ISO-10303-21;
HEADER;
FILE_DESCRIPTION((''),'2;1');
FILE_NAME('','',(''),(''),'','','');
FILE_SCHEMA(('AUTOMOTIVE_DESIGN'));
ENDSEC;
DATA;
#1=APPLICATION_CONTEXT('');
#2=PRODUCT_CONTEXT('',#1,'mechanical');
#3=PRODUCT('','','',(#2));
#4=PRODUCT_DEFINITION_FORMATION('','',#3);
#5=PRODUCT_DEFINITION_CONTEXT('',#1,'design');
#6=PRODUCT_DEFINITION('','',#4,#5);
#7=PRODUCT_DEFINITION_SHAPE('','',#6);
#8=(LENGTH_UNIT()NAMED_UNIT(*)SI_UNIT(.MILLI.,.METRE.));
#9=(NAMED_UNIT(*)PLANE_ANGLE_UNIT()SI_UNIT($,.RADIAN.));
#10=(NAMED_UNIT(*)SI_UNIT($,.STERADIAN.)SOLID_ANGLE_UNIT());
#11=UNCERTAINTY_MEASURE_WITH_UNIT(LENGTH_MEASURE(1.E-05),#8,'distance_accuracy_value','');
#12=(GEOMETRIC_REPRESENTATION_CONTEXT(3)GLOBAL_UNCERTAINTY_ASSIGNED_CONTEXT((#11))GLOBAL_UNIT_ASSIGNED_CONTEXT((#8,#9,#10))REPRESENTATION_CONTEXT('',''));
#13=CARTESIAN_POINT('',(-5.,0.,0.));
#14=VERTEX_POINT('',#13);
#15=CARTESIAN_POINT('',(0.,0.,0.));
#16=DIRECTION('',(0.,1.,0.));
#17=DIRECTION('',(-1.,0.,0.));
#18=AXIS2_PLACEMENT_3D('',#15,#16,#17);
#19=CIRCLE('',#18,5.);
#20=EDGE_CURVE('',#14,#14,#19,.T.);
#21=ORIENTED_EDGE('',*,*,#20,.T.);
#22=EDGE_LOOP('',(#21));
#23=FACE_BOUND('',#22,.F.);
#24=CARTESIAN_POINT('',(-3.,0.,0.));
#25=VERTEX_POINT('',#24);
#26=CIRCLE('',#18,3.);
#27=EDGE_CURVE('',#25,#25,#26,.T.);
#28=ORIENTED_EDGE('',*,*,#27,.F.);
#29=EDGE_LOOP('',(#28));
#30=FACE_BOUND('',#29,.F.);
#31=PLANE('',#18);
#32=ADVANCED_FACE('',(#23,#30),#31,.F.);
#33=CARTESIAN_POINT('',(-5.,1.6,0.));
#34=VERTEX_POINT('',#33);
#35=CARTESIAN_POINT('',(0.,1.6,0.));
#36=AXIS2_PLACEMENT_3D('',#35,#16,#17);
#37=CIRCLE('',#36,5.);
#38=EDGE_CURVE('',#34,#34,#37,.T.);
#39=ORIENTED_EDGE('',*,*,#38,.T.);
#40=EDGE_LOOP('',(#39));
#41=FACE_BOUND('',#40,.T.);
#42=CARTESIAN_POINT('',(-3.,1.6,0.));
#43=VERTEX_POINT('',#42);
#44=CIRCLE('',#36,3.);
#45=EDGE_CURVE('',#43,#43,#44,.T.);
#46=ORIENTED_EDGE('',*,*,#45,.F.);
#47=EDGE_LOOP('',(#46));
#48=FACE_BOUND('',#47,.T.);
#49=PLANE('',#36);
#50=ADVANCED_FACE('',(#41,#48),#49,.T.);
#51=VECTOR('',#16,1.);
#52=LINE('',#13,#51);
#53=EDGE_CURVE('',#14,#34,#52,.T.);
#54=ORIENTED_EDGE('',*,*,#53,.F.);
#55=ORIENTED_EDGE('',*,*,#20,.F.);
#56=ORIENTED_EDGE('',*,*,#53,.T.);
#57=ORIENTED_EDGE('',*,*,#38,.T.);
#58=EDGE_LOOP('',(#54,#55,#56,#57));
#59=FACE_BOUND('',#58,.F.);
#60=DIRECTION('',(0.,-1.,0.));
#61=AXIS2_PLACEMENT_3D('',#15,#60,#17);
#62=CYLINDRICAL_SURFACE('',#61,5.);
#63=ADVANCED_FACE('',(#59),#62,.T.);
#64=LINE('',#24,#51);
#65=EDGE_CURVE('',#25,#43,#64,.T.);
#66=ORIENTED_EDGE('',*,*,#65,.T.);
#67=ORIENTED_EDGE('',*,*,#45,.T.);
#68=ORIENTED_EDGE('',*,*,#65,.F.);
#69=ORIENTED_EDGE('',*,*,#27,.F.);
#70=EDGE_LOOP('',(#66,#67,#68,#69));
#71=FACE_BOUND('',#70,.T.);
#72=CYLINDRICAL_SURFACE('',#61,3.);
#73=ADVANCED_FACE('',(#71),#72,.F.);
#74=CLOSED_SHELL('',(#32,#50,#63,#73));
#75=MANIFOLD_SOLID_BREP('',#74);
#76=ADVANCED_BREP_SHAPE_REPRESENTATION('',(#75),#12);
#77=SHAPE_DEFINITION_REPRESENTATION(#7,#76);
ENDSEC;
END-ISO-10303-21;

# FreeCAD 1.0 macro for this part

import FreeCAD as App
import Part
import Sketcher
from FreeCAD import Vector
Q = App.Units.Quantity

doc = App.newDocument("Part")
body = doc.addObject("PartDesign::Body", "Body")

sketch1 = body.newObject("Sketcher::SketchObject", "Sketch")
sketch1.AttachmentSupport = (doc.getObject("XZ_Plane"), [""])
sketch1.MapMode = "FlatFace"
sketch1.addGeometry([
    Part.Circle(Vector(0, 0, 0), Vector(0, 0, 1), 5),
    Part.Circle(Vector(0, 0, 0), Vector(0, 0, 1), 3),
], False)
sketch1.addConstraint([
    Sketcher.Constraint("Coincident", 0, 3, -1, 1),
    Sketcher.Constraint("Coincident", 1, 3, -1, 1),
    Sketcher.Constraint("Diameter", 0, Q("10 mm")),
    Sketcher.Constraint("Diameter", 1, Q("6 mm")),
])
pad1 = body.newObject("PartDesign::Pad", "Pad")
pad1.Profile = sketch1
pad1.Length = 1.6
pad1.Reversed = True

doc.recompute()
